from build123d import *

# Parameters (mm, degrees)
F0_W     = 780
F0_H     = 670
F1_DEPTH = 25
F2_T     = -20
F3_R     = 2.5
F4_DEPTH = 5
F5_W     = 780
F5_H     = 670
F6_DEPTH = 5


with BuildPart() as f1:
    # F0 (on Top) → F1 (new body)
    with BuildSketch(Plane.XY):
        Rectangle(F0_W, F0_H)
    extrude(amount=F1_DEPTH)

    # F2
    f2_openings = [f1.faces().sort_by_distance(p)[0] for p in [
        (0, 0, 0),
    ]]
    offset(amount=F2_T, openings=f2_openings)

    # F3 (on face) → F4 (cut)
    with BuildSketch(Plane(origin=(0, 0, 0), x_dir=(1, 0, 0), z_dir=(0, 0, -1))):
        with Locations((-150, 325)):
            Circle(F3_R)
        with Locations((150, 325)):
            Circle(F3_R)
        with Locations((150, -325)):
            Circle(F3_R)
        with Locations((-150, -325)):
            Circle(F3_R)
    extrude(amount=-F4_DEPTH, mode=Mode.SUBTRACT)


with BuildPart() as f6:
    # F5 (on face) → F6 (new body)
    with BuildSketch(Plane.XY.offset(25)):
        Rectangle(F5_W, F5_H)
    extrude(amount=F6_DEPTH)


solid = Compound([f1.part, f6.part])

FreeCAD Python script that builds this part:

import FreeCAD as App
import Part
import Sketcher


def faces_at(feature, points):
    """Names of the faces that lie closest to the given points."""
    faces = feature.Shape.Faces
    near = lambda p: min(range(len(faces)), key=lambda i: faces[i].distToShape(Part.Vertex(*p))[0])
    return sorted({f"Face{near(p) + 1}" for p in points})

doc = App.newDocument("Part")
body = doc.addObject("PartDesign::Body", "Body")

# Sketch on XY plane
sketch1 = body.newObject("Sketcher::SketchObject", "Sketch")
sketch1.AttachmentSupport = (doc.getObject("XY_Plane"), [""])
sketch1.MapMode = "FlatFace"
sketch1.addGeometry(Part.LineSegment(App.Vector(-390, 335, 0), App.Vector(-390, -335, 0)), False)
sketch1.addGeometry(Part.LineSegment(App.Vector(-390, -335, 0), App.Vector(390, -335, 0)), False)
sketch1.addGeometry(Part.LineSegment(App.Vector(390, -335, 0), App.Vector(390, 335, 0)), False)
sketch1.addGeometry(Part.LineSegment(App.Vector(390, 335, 0), App.Vector(-390, 335, 0)), False)
sketch1.addConstraint(Sketcher.Constraint("Coincident", 0, 2, 1, 1))
sketch1.addConstraint(Sketcher.Constraint("Coincident", 1, 2, 2, 1))
sketch1.addConstraint(Sketcher.Constraint("Coincident", 2, 2, 3, 1))
sketch1.addConstraint(Sketcher.Constraint("Coincident", 3, 2, 0, 1))
sketch1.addConstraint(Sketcher.Constraint("Vertical", 0))
sketch1.addConstraint(Sketcher.Constraint("Horizontal", 1))
sketch1.addConstraint(Sketcher.Constraint("Vertical", 2))
sketch1.addConstraint(Sketcher.Constraint("Horizontal", 3))
sketch1.addConstraint(Sketcher.Constraint("Symmetric", 0, 2, 2, 2, -1, 1))
sketch1.addConstraint(Sketcher.Constraint("DistanceX", 1, 1, 1, 2, 780.0))
sketch1.addConstraint(Sketcher.Constraint("DistanceY", 0, 2, 0, 1, 670.0))
pad1 = body.newObject("PartDesign::Pad", "Pad")
pad1.Profile = sketch1
pad1.Length = 25
doc.recompute()

thickness = body.newObject("PartDesign::Thickness", "Thickness")
thickness.Base = (pad1, faces_at(pad1, [(0, 0, 0)]))
thickness.Value = 20
thickness.Reversed = True
thickness.Join = "Arc"

# Sketch on XY plane
sketch2 = body.newObject("Sketcher::SketchObject", "Sketch001")
sketch2.AttachmentSupport = (doc.getObject("XY_Plane"), [""])
sketch2.MapMode = "FlatFace"
sketch2.addGeometry(Part.Circle(App.Vector(-150, -325, 0), App.Vector(0, 0, 1), 2.5), False)
sketch2.addGeometry(Part.Circle(App.Vector(150, -325, 0), App.Vector(0, 0, 1), 2.5), False)
sketch2.addGeometry(Part.Circle(App.Vector(150, 325, 0), App.Vector(0, 0, 1), 2.5), False)
sketch2.addGeometry(Part.Circle(App.Vector(-150, 325, 0), App.Vector(0, 0, 1), 2.5), False)
sketch2.addConstraint(Sketcher.Constraint("Equal", 0, 1))
sketch2.addConstraint(Sketcher.Constraint("Equal", 1, 2))
sketch2.addConstraint(Sketcher.Constraint("Equal", 2, 3))
sketch2.addConstraint(Sketcher.Constraint("Symmetric", 0, 3, 2, 3, -1, 1))
sketch2.addConstraint(Sketcher.Constraint("Symmetric", 1, 3, 3, 3, -1, 1))
sketch2.addConstraint(Sketcher.Constraint("Symmetric", 0, 3, 1, 3, -2))
sketch2.addConstraint(Sketcher.Constraint("Diameter", 0, 5.0))
sketch2.addConstraint(Sketcher.Constraint("DistanceX", 0, 3, -1, 1, 150.0))
sketch2.addConstraint(Sketcher.Constraint("DistanceY", 0, 3, -1, 1, 325.0))
pocket1 = body.newObject("PartDesign::Pocket", "Pocket")
pocket1.Profile = sketch2
pocket1.Length = 5
pocket1.Reversed = True
body2 = doc.addObject("PartDesign::Body", "Body001")

# Sketch on XY plane
sketch3 = body2.newObject("Sketcher::SketchObject", "Sketch002")
sketch3.AttachmentSupport = (doc.getObject("XY_Plane001"), [""])
sketch3.MapMode = "FlatFace"
sketch3.AttachmentOffset = App.Placement(App.Vector(0, 0, 25), App.Rotation())
sketch3.addGeometry(Part.LineSegment(App.Vector(-390, 335, 0), App.Vector(-390, -335, 0)), False)
sketch3.addGeometry(Part.LineSegment(App.Vector(-390, -335, 0), App.Vector(390, -335, 0)), False)
sketch3.addGeometry(Part.LineSegment(App.Vector(390, -335, 0), App.Vector(390, 335, 0)), False)
sketch3.addGeometry(Part.LineSegment(App.Vector(390, 335, 0), App.Vector(-390, 335, 0)), False)
sketch3.addConstraint(Sketcher.Constraint("Coincident", 0, 2, 1, 1))
sketch3.addConstraint(Sketcher.Constraint("Coincident", 1, 2, 2, 1))
sketch3.addConstraint(Sketcher.Constraint("Coincident", 2, 2, 3, 1))
sketch3.addConstraint(Sketcher.Constraint("Coincident", 3, 2, 0, 1))
sketch3.addConstraint(Sketcher.Constraint("Vertical", 0))
sketch3.addConstraint(Sketcher.Constraint("Horizontal", 1))
sketch3.addConstraint(Sketcher.Constraint("Vertical", 2))
sketch3.addConstraint(Sketcher.Constraint("Horizontal", 3))
sketch3.addConstraint(Sketcher.Constraint("Symmetric", 0, 2, 2, 2, -1, 1))
sketch3.addConstraint(Sketcher.Constraint("DistanceX", 1, 1, 1, 2, 780.0))
sketch3.addConstraint(Sketcher.Constraint("DistanceY", 0, 2, 0, 1, 670.0))
pad2 = body2.newObject("PartDesign::Pad", "Pad001")
pad2.Profile = sketch3
pad2.Length = 5

doc.recompute()
